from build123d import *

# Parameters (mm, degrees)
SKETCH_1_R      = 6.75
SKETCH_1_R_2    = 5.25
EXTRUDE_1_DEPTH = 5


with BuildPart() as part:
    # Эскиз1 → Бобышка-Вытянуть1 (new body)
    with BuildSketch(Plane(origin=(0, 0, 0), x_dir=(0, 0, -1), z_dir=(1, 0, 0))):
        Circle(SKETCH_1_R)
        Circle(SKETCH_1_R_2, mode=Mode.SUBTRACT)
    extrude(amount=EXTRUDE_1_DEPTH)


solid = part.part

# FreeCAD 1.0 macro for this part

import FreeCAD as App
import Part
import Sketcher

V = App.Vector
Q = App.Units.Quantity

doc = App.newDocument("Part")
params = doc.addObject("Spreadsheet::Sheet", "Params")
for row, (alias, value) in enumerate([
    ("sketch1_diameter", "13.5 mm"),
    ("sketch1_diameter2", "10.5 mm"),
    ("pad1_length", "5 mm"),
], start=1):
    params.set(f"A{row}", alias)
    params.set(f"B{row}", "=" + value)
    params.setAlias(f"B{row}", alias)

body = doc.addObject("PartDesign::Body", "Body")

# Sketch on YZ plane
sketch1 = doc.addObject("Sketcher::SketchObject", "Sketch")
body.addObject(sketch1)
sketch1.AttachmentSupport = (doc.YZ_Plane, [""])
sketch1.MapMode = "FlatFace"
sketch1.addGeometry([
    Part.Circle(V(0, 0, 0), V(0, 0, 1), 6.75),
    Part.Circle(V(0, 0, 0), V(0, 0, 1), 5.25),
], False)
sketch1.addConstraint([
    Sketcher.Constraint("Coincident", 0, 3, -1, 1),
    Sketcher.Constraint("Coincident", 1, 3, -1, 1),
    Sketcher.Constraint("Diameter", 0, Q("13.5 mm")),
    Sketcher.Constraint("Diameter", 1, Q("10.5 mm")),
])
sketch1.setExpression("Constraints[2]", "Params.sketch1_diameter")
sketch1.setExpression("Constraints[3]", "Params.sketch1_diameter2")
pad1 = doc.addObject("PartDesign::Pad", "Pad")
body.addObject(pad1)
pad1.Profile = sketch1
pad1.setExpression("Length", "Params.pad1_length")

doc.recompute()
